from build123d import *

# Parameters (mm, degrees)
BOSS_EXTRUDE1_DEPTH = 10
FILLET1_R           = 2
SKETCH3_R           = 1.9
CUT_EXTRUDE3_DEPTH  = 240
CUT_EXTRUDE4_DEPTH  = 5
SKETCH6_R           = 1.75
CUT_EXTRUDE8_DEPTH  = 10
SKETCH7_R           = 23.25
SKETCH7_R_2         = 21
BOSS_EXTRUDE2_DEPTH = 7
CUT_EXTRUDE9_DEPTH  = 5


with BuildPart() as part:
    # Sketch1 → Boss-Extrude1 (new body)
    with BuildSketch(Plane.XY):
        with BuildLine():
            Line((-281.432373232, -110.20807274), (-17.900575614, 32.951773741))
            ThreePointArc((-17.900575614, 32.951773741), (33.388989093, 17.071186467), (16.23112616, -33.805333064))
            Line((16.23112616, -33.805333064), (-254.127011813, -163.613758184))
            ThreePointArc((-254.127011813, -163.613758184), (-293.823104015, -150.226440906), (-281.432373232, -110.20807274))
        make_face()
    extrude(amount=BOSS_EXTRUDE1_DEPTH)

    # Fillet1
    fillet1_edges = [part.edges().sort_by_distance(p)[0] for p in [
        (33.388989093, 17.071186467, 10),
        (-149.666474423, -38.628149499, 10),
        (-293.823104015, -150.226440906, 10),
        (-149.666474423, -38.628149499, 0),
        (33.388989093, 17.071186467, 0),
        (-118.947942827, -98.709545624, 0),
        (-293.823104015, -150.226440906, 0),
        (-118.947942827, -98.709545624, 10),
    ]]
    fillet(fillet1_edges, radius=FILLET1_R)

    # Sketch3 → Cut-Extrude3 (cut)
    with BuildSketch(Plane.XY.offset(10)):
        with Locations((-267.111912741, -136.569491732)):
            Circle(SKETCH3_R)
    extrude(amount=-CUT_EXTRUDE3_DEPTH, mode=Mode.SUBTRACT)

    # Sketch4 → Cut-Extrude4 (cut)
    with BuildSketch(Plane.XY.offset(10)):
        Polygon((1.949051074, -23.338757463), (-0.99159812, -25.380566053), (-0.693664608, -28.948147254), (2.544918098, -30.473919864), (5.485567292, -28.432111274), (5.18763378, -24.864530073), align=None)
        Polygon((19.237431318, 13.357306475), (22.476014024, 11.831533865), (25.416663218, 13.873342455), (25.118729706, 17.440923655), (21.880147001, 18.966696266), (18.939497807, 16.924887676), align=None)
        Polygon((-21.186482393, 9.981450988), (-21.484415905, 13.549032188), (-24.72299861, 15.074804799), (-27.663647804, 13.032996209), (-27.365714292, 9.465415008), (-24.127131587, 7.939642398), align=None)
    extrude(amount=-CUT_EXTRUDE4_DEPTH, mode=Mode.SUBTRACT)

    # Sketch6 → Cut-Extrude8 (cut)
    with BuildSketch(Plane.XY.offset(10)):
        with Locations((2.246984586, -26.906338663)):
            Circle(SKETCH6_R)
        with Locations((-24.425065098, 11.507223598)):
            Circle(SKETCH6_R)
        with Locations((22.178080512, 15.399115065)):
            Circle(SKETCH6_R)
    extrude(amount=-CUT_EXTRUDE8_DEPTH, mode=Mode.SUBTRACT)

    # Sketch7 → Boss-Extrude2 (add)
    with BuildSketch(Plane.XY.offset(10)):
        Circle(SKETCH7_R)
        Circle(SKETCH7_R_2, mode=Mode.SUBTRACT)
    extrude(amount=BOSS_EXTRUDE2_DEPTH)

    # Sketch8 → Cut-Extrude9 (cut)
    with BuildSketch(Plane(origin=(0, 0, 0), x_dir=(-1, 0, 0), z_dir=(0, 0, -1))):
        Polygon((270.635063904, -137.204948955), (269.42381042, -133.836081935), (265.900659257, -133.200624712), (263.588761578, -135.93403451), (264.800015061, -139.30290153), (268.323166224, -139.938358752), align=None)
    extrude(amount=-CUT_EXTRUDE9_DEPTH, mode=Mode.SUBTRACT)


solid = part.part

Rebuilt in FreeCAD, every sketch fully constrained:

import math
import FreeCAD as App
import Part
import Sketcher

V = App.Vector


def edges_at(feature, points):
    """Names of the edges that pass closest to the given points."""
    edges = feature.Shape.Edges
    near = lambda p: min(range(len(edges)), key=lambda i: edges[i].distToShape(Part.Vertex(*p))[0])
    return sorted({f"Edge{near(p) + 1}" for p in points})

doc = App.newDocument("Part")
body = doc.addObject("PartDesign::Body", "Body")

# Sketch on XY plane
sketch1 = doc.addObject("Sketcher::SketchObject", "Sketch")
body.addObject(sketch1)
sketch1.AttachmentSupport = (doc.XY_Plane, [""])
sketch1.MapMode = "FlatFace"
sketch1.addGeometry(Part.LineSegment(V(-18, 33, 0), V(-281, -110, 0)), False)
sketch1.addGeometry(Part.ArcOfCircle(Part.Circle(V(-267, -137, 0), V(0, 0, 1), 30), math.radians(119), math.radians(296)), False)
sketch1.addGeometry(Part.LineSegment(V(-254, -164, 0), V(16, -34, 0)), False)
sketch1.addGeometry(Part.ArcOfCircle(Part.Circle(V(0, 0, 0), V(0, 0, 1), 38), math.radians(-64), math.radians(119)), False)
sketch1.addConstraint(Sketcher.Constraint("Tangent", 0, 2, 1, 1))
sketch1.addConstraint(Sketcher.Constraint("Tangent", 1, 2, 2, 1))
sketch1.addConstraint(Sketcher.Constraint("Tangent", 2, 2, 3, 1))
sketch1.addConstraint(Sketcher.Constraint("Tangent", 3, 2, 0, 1))
sketch1.addConstraint(Sketcher.Constraint("Coincident", 3, 3, -1, 1))
sketch1.addConstraint(Sketcher.Constraint("Radius", 1, 30.0))
sketch1.addConstraint(Sketcher.Constraint("Radius", 3, 37.5))
sketch1.addConstraint(Sketcher.Constraint("DistanceX", 0, 2, 2, 2, 297.663499))
sketch1.addConstraint(Sketcher.Constraint("DistanceX", 3, 2, 2, 2, 34.131702))
pad1 = doc.addObject("PartDesign::Pad", "Pad")
body.addObject(pad1)
pad1.Profile = sketch1
pad1.Length = 10
doc.recompute()

fillet = doc.addObject("PartDesign::Fillet", "Fillet")
body.addObject(fillet)
fillet.Base = (pad1, edges_at(pad1, [
    (33.389, 17.071, 10),
    (-149.666, -38.628, 10),
    (-293.823, -150.226, 10),
    (-149.666, -38.628, 0),
    (33.389, 17.071, 0),
    (-118.948, -98.71, 0),
    (-293.823, -150.226, 0),
    (-118.948, -98.71, 10),
]))
fillet.Radius = 2

# Sketch on XY plane
sketch2 = doc.addObject("Sketcher::SketchObject", "Sketch001")
body.addObject(sketch2)
sketch2.AttachmentSupport = (doc.XY_Plane, [""])
sketch2.MapMode = "FlatFace"
sketch2.AttachmentOffset = App.Placement(V(0, 0, 10), App.Rotation())
sketch2.addGeometry(Part.Circle(V(-267.1, -136.6, 0), V(0, 0, 1), 1.9), False)
sketch2.addConstraint(Sketcher.Constraint("Diameter", 0, 3.8))
sketch2.addConstraint(Sketcher.Constraint("DistanceY", 0, 3, -1, 1, 136.569492))
sketch2.addConstraint(Sketcher.Constraint("DistanceX", 0, 3, -1, 1, 267.111913))
pocket1 = doc.addObject("PartDesign::Pocket", "Pocket")
body.addObject(pocket1)
pocket1.Profile = sketch2
pocket1.Length = 240

# Sketch on XY plane
sketch3 = doc.addObject("Sketcher::SketchObject", "Sketch002")
body.addObject(sketch3)
sketch3.AttachmentSupport = (doc.XY_Plane, [""])
sketch3.MapMode = "FlatFace"
sketch3.AttachmentOffset = App.Placement(V(0, 0, 10), App.Rotation())
sketch3.addGeometry(Part.LineSegment(V(1.9, -23.3, 0), V(-1, -25.4, 0)), False)
sketch3.addGeometry(Part.LineSegment(V(-1, -25.4, 0), V(-0.7, -28.9, 0)), False)
sketch3.addGeometry(Part.LineSegment(V(-0.7, -28.9, 0), V(2.5, -30.5, 0)), False)
sketch3.addGeometry(Part.LineSegment(V(2.5, -30.5, 0), V(5.5, -28.4, 0)), False)
sketch3.addGeometry(Part.LineSegment(V(5.5, -28.4, 0), V(5.2, -24.9, 0)), False)
sketch3.addGeometry(Part.LineSegment(V(5.2, -24.9, 0), V(1.9, -23.3, 0)), False)
sketch3.addGeometry(Part.LineSegment(V(19.2, 13.4, 0), V(22.5, 11.8, 0)), False)
sketch3.addGeometry(Part.LineSegment(V(22.5, 11.8, 0), V(25.4, 13.9, 0)), False)
sketch3.addGeometry(Part.LineSegment(V(25.4, 13.9, 0), V(25.1, 17.4, 0)), False)
sketch3.addGeometry(Part.LineSegment(V(25.1, 17.4, 0), V(21.9, 19, 0)), False)
sketch3.addGeometry(Part.LineSegment(V(21.9, 19, 0), V(18.9, 16.9, 0)), False)
sketch3.addGeometry(Part.LineSegment(V(18.9, 16.9, 0), V(19.2, 13.4, 0)), False)
sketch3.addGeometry(Part.LineSegment(V(-21.2, 10, 0), V(-21.5, 13.5, 0)), False)
sketch3.addGeometry(Part.LineSegment(V(-21.5, 13.5, 0), V(-24.7, 15.1, 0)), False)
sketch3.addGeometry(Part.LineSegment(V(-24.7, 15.1, 0), V(-27.7, 13, 0)), False)
sketch3.addGeometry(Part.LineSegment(V(-27.7, 13, 0), V(-27.4, 9.5, 0)), False)
sketch3.addGeometry(Part.LineSegment(V(-27.4, 9.5, 0), V(-24.1, 7.9, 0)), False)
sketch3.addGeometry(Part.LineSegment(V(-24.1, 7.9, 0), V(-21.2, 10, 0)), False)
sketch3.addConstraint(Sketcher.Constraint("Coincident", 0, 2, 1, 1))
sketch3.addConstraint(Sketcher.Constraint("Coincident", 1, 2, 2, 1))
sketch3.addConstraint(Sketcher.Constraint("Coincident", 2, 2, 3, 1))
sketch3.addConstraint(Sketcher.Constraint("Coincident", 3, 2, 4, 1))
sketch3.addConstraint(Sketcher.Constraint("Coincident", 4, 2, 5, 1))
sketch3.addConstraint(Sketcher.Constraint("Coincident", 5, 2, 0, 1))
sketch3.addConstraint(Sketcher.Constraint("Coincident", 6, 2, 7, 1))
sketch3.addConstraint(Sketcher.Constraint("Coincident", 7, 2, 8, 1))
sketch3.addConstraint(Sketcher.Constraint("Coincident", 8, 2, 9, 1))
sketch3.addConstraint(Sketcher.Constraint("Coincident", 9, 2, 10, 1))
sketch3.addConstraint(Sketcher.Constraint("Coincident", 10, 2, 11, 1))
sketch3.addConstraint(Sketcher.Constraint("Coincident", 11, 2, 6, 1))
sketch3.addConstraint(Sketcher.Constraint("Coincident", 12, 2, 13, 1))
sketch3.addConstraint(Sketcher.Constraint("Coincident", 13, 2, 14, 1))
sketch3.addConstraint(Sketcher.Constraint("Coincident", 14, 2, 15, 1))
sketch3.addConstraint(Sketcher.Constraint("Coincident", 15, 2, 16, 1))
sketch3.addConstraint(Sketcher.Constraint("Coincident", 16, 2, 17, 1))
sketch3.addConstraint(Sketcher.Constraint("Coincident", 17, 2, 12, 1))
sketch3.addConstraint(Sketcher.Constraint("Parallel", 0, 3))
sketch3.addConstraint(Sketcher.Constraint("Parallel", 1, 4))
sketch3.addConstraint(Sketcher.Constraint("Parallel", 2, 5))
sketch3.addConstraint(Sketcher.Constraint("Parallel", 5, 6))
sketch3.addConstraint(Sketcher.Constraint("Parallel", 3, 7))
sketch3.addConstraint(Sketcher.Constraint("Parallel", 4, 8))
sketch3.addConstraint(Sketcher.Constraint("Parallel", 6, 9))
sketch3.addConstraint(Sketcher.Constraint("Parallel", 7, 10))
sketch3.addConstraint(Sketcher.Constraint("Parallel", 8, 11))
sketch3.addConstraint(Sketcher.Constraint("Parallel", 11, 12))
sketch3.addConstraint(Sketcher.Constraint("Parallel", 9, 13))
sketch3.addConstraint(Sketcher.Constraint("Parallel", 10, 14))
sketch3.addConstraint(Sketcher.Constraint("Parallel", 12, 15))
sketch3.addConstraint(Sketcher.Constraint("Parallel", 13, 16))
sketch3.addConstraint(Sketcher.Constraint("Parallel", 14, 17))
sketch3.addConstraint(Sketcher.Constraint("Equal", 0, 1))
sketch3.addConstraint(Sketcher.Constraint("Equal", 1, 2))
sketch3.addConstraint(Sketcher.Constraint("Equal", 2, 3))
sketch3.addConstraint(Sketcher.Constraint("Equal", 5, 6))
sketch3.addConstraint(Sketcher.Constraint("Equal", 6, 7))
sketch3.addConstraint(Sketcher.Constraint("Equal", 7, 8))
sketch3.addConstraint(Sketcher.Constraint("Equal", 8, 9))
sketch3.addConstraint(Sketcher.Constraint("Equal", 11, 12))
sketch3.addConstraint(Sketcher.Constraint("Equal", 12, 13))
sketch3.addConstraint(Sketcher.Constraint("Equal", 13, 14))
sketch3.addConstraint(Sketcher.Constraint("Equal", 14, 15))
sketch3.addConstraint(Sketcher.Constraint("Distance", 0, 3.58))
sketch3.addConstraint(Sketcher.Constraint("DistanceX", 13, 2, -1, 1, 24.722999))
sketch3.addConstraint(Sketcher.Constraint("DistanceX", 0, 2, -1, 1, 0.991598))
sketch3.addConstraint(Sketcher.Constraint("DistanceX", 1, 2, 4, 2, 5.881298))
sketch3.addConstraint(Sketcher.Constraint("DistanceY", 0, 2, 6, 2, 37.2121))
sketch3.addConstraint(Sketcher.Constraint("DistanceY", 0, 2, 12, 2, 38.929598))
sketch3.addConstraint(Sketcher.Constraint("DistanceX", -1, 1, 2, 2, 2.544918))
sketch3.addConstraint(Sketcher.Constraint("DistanceY", 2, 2, -1, 1, 30.47392))
sketch3.addConstraint(Sketcher.Constraint("DistanceY", 3, 2, -1, 1, 28.432111))
sketch3.addConstraint(Sketcher.Constraint("DistanceX", -1, 1, 8, 2, 25.11873))
pocket2 = doc.addObject("PartDesign::Pocket", "Pocket001")
body.addObject(pocket2)
pocket2.Profile = sketch3
pocket2.Length = 5

# Sketch on XY plane
sketch4 = doc.addObject("Sketcher::SketchObject", "Sketch003")
body.addObject(sketch4)
sketch4.AttachmentSupport = (doc.XY_Plane, [""])
sketch4.MapMode = "FlatFace"
sketch4.AttachmentOffset = App.Placement(V(0, 0, 10), App.Rotation())
sketch4.addGeometry(Part.Circle(V(2.2, -26.9, 0), V(0, 0, 1), 1.8), False)
sketch4.addGeometry(Part.Circle(V(-24.4, 11.5, 0), V(0, 0, 1), 1.8), False)
sketch4.addGeometry(Part.Circle(V(22.2, 15.4, 0), V(0, 0, 1), 1.8), False)
sketch4.addConstraint(Sketcher.Constraint("Equal", 0, 1))
sketch4.addConstraint(Sketcher.Constraint("Equal", 1, 2))
sketch4.addConstraint(Sketcher.Constraint("Diameter", 0, 3.5))
sketch4.addConstraint(Sketcher.Constraint("DistanceY", 0, 3, -1, 1, 26.906339))
sketch4.addConstraint(Sketcher.Constraint("DistanceX", -1, 1, 2, 3, 22.178081))
sketch4.addConstraint(Sketcher.Constraint("DistanceX", 1, 3, 0, 3, 26.67205))
sketch4.addConstraint(Sketcher.Constraint("DistanceY", 1, 3, 2, 3, 3.891891))
sketch4.addConstraint(Sketcher.Constraint("DistanceX", -1, 1, 0, 3, 2.246985))
sketch4.addConstraint(Sketcher.Constraint("DistanceY", -1, 1, 1, 3, 11.507224))
pocket3 = doc.addObject("PartDesign::Pocket", "Pocket002")
body.addObject(pocket3)
pocket3.Profile = sketch4
pocket3.Length = 10

# Sketch on XY plane
sketch5 = doc.addObject("Sketcher::SketchObject", "Sketch004")
body.addObject(sketch5)
sketch5.AttachmentSupport = (doc.XY_Plane, [""])
sketch5.MapMode = "FlatFace"
sketch5.AttachmentOffset = App.Placement(V(0, 0, 10), App.Rotation())
sketch5.addGeometry(Part.Circle(V(0, 0, 0), V(0, 0, 1), 23), False)
sketch5.addGeometry(Part.Circle(V(0, 0, 0), V(0, 0, 1), 21), False)
sketch5.addConstraint(Sketcher.Constraint("Coincident", 0, 3, -1, 1))
sketch5.addConstraint(Sketcher.Constraint("Coincident", 1, 3, -1, 1))
sketch5.addConstraint(Sketcher.Constraint("Diameter", 1, 42.0))
sketch5.addConstraint(Sketcher.Constraint("Diameter", 0, 46.5))
pad2 = doc.addObject("PartDesign::Pad", "Pad001")
body.addObject(pad2)
pad2.Profile = sketch5
pad2.Length = 7

# Sketch on XY plane
sketch6 = doc.addObject("Sketcher::SketchObject", "Sketch005")
body.addObject(sketch6)
sketch6.AttachmentSupport = (doc.XY_Plane, [""])
sketch6.MapMode = "FlatFace"
sketch6.addGeometry(Part.LineSegment(V(-270.6, -137.2, 0), V(-269.4, -133.8, 0)), False)
sketch6.addGeometry(Part.LineSegment(V(-269.4, -133.8, 0), V(-265.9, -133.2, 0)), False)
sketch6.addGeometry(Part.LineSegment(V(-265.9, -133.2, 0), V(-263.6, -135.9, 0)), False)
sketch6.addGeometry(Part.LineSegment(V(-263.6, -135.9, 0), V(-264.8, -139.3, 0)), False)
sketch6.addGeometry(Part.LineSegment(V(-264.8, -139.3, 0), V(-268.3, -139.9, 0)), False)
sketch6.addGeometry(Part.LineSegment(V(-268.3, -139.9, 0), V(-270.6, -137.2, 0)), False)
sketch6.addConstraint(Sketcher.Constraint("Coincident", 0, 2, 1, 1))
sketch6.addConstraint(Sketcher.Constraint("Coincident", 1, 2, 2, 1))
sketch6.addConstraint(Sketcher.Constraint("Coincident", 2, 2, 3, 1))
sketch6.addConstraint(Sketcher.Constraint("Coincident", 3, 2, 4, 1))
sketch6.addConstraint(Sketcher.Constraint("Coincident", 4, 2, 5, 1))
sketch6.addConstraint(Sketcher.Constraint("Coincident", 5, 2, 0, 1))
sketch6.addConstraint(Sketcher.Constraint("Parallel", 0, 3))
sketch6.addConstraint(Sketcher.Constraint("Parallel", 1, 4))
sketch6.addConstraint(Sketcher.Constraint("Parallel", 2, 5))
sketch6.addConstraint(Sketcher.Constraint("Equal", 0, 1))
sketch6.addConstraint(Sketcher.Constraint("Equal", 1, 2))
sketch6.addConstraint(Sketcher.Constraint("Equal", 2, 3))
sketch6.addConstraint(Sketcher.Constraint("Distance", 0, 3.58))
sketch6.addConstraint(Sketcher.Constraint("DistanceY", 3, 2, -1, 1, 139.302902))
sketch6.addConstraint(Sketcher.Constraint("DistanceX", 0, 2, -1, 1, 269.42381))
sketch6.addConstraint(Sketcher.Constraint("DistanceY", 0, 2, -1, 1, 133.836082))
sketch6.addConstraint(Sketcher.Constraint("DistanceX", 1, 2, -1, 1, 265.900659))
sketch6.addConstraint(Sketcher.Constraint("DistanceX", 2, 2, -1, 1, 263.588762))
pocket4 = doc.addObject("PartDesign::Pocket", "Pocket003")
body.addObject(pocket4)
pocket4.Profile = sketch6
pocket4.Length = 5
pocket4.Reversed = True

doc.recompute()
